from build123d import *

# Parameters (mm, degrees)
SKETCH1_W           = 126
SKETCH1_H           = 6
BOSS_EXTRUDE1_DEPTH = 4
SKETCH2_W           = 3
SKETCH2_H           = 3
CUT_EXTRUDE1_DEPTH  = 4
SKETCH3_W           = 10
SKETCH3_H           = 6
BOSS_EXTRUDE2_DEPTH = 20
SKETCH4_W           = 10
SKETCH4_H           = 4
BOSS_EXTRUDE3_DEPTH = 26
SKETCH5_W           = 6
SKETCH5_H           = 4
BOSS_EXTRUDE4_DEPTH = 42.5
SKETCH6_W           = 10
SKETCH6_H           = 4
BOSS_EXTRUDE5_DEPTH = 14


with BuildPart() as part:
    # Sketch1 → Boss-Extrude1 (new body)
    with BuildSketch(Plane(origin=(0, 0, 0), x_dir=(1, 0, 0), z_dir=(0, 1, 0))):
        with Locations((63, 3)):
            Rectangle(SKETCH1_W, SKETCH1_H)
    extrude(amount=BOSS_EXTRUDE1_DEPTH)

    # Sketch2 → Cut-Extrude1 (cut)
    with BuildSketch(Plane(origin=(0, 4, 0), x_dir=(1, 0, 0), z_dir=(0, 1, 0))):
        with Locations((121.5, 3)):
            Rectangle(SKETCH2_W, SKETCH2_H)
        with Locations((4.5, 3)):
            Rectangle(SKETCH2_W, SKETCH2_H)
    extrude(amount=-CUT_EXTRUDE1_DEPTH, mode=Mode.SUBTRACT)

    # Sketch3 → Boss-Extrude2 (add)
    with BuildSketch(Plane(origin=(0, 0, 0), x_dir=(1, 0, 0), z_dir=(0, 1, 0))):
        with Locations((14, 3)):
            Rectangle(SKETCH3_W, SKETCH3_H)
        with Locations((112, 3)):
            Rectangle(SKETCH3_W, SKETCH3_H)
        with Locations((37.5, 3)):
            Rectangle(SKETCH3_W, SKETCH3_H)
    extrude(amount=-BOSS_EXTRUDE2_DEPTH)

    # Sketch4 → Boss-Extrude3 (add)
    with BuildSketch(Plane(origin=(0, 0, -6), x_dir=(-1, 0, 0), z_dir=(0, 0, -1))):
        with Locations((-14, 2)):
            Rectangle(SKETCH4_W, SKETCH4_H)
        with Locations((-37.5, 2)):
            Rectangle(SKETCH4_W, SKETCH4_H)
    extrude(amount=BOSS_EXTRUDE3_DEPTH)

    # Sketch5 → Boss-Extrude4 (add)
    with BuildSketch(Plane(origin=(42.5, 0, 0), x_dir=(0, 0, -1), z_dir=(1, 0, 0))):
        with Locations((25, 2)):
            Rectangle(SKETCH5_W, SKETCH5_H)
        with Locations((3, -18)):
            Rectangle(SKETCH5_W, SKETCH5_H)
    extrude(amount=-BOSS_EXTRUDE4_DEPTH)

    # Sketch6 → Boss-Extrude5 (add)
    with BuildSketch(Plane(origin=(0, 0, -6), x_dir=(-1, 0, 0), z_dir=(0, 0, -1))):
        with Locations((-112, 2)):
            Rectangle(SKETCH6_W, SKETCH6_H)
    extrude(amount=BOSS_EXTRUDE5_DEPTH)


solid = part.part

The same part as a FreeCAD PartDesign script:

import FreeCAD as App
import Part
import Sketcher

doc = App.newDocument("Part")
body = doc.addObject("PartDesign::Body", "Body")

# Sketch on XZ plane
sketch1 = body.newObject("Sketcher::SketchObject", "Sketch")
sketch1.AttachmentSupport = (doc.getObject("XZ_Plane"), [""])
sketch1.MapMode = "FlatFace"
sketch1.addGeometry(Part.LineSegment(App.Vector(0, -6, 0), App.Vector(0, 0, 0)), False)
sketch1.addGeometry(Part.LineSegment(App.Vector(0, 0, 0), App.Vector(126, 0, 0)), False)
sketch1.addGeometry(Part.LineSegment(App.Vector(126, 0, 0), App.Vector(126, -6, 0)), False)
sketch1.addGeometry(Part.LineSegment(App.Vector(126, -6, 0), App.Vector(0, -6, 0)), False)
sketch1.addConstraint(Sketcher.Constraint("Coincident", 0, 2, 1, 1))
sketch1.addConstraint(Sketcher.Constraint("Coincident", 1, 2, 2, 1))
sketch1.addConstraint(Sketcher.Constraint("Coincident", 2, 2, 3, 1))
sketch1.addConstraint(Sketcher.Constraint("Coincident", 3, 2, 0, 1))
sketch1.addConstraint(Sketcher.Constraint("Vertical", 0))
sketch1.addConstraint(Sketcher.Constraint("Horizontal", 1))
sketch1.addConstraint(Sketcher.Constraint("Vertical", 2))
sketch1.addConstraint(Sketcher.Constraint("Horizontal", 3))
sketch1.addConstraint(Sketcher.Constraint("Coincident", 0, 2, -1, 1))
sketch1.addConstraint(Sketcher.Constraint("DistanceX", 1, 1, 1, 2, 126.0))
sketch1.addConstraint(Sketcher.Constraint("DistanceY", 0, 1, 0, 2, 6.0))
pad1 = body.newObject("PartDesign::Pad", "Pad")
pad1.Profile = sketch1
pad1.Length = 4
pad1.Reversed = True

# Sketch on XZ plane
sketch2 = body.newObject("Sketcher::SketchObject", "Sketch001")
sketch2.AttachmentSupport = (doc.getObject("XZ_Plane"), [""])
sketch2.MapMode = "FlatFace"
sketch2.AttachmentOffset = App.Placement(App.Vector(0, 0, -4), App.Rotation())
sketch2.addGeometry(Part.LineSegment(App.Vector(120, -4.5, 0), App.Vector(120, -1.5, 0)), False)
sketch2.addGeometry(Part.LineSegment(App.Vector(120, -1.5, 0), App.Vector(123, -1.5, 0)), False)
sketch2.addGeometry(Part.LineSegment(App.Vector(123, -1.5, 0), App.Vector(123, -4.5, 0)), False)
sketch2.addGeometry(Part.LineSegment(App.Vector(123, -4.5, 0), App.Vector(120, -4.5, 0)), False)
sketch2.addGeometry(Part.LineSegment(App.Vector(3, -4.5, 0), App.Vector(3, -1.5, 0)), False)
sketch2.addGeometry(Part.LineSegment(App.Vector(3, -1.5, 0), App.Vector(6, -1.5, 0)), False)
sketch2.addGeometry(Part.LineSegment(App.Vector(6, -1.5, 0), App.Vector(6, -4.5, 0)), False)
sketch2.addGeometry(Part.LineSegment(App.Vector(6, -4.5, 0), App.Vector(3, -4.5, 0)), False)
sketch2.addConstraint(Sketcher.Constraint("Coincident", 0, 2, 1, 1))
sketch2.addConstraint(Sketcher.Constraint("Coincident", 1, 2, 2, 1))
sketch2.addConstraint(Sketcher.Constraint("Coincident", 2, 2, 3, 1))
sketch2.addConstraint(Sketcher.Constraint("Coincident", 3, 2, 0, 1))
sketch2.addConstraint(Sketcher.Constraint("Coincident", 4, 2, 5, 1))
sketch2.addConstraint(Sketcher.Constraint("Coincident", 5, 2, 6, 1))
sketch2.addConstraint(Sketcher.Constraint("Coincident", 6, 2, 7, 1))
sketch2.addConstraint(Sketcher.Constraint("Coincident", 7, 2, 4, 1))
sketch2.addConstraint(Sketcher.Constraint("Vertical", 0))
sketch2.addConstraint(Sketcher.Constraint("Horizontal", 1))
sketch2.addConstraint(Sketcher.Constraint("Vertical", 2))
sketch2.addConstraint(Sketcher.Constraint("Horizontal", 3))
sketch2.addConstraint(Sketcher.Constraint("Vertical", 4))
sketch2.addConstraint(Sketcher.Constraint("Horizontal", 5))
sketch2.addConstraint(Sketcher.Constraint("Vertical", 6))
sketch2.addConstraint(Sketcher.Constraint("Horizontal", 7))
sketch2.addConstraint(Sketcher.Constraint("Horizontal", 1, 2, 4, 2))
sketch2.addConstraint(Sketcher.Constraint("Horizontal", 3, 2, 6, 2))
sketch2.addConstraint(Sketcher.Constraint("Equal", 3, 5))
sketch2.addConstraint(Sketcher.Constraint("Equal", 7, 0))
sketch2.addConstraint(Sketcher.Constraint("DistanceX", 1, 1, 1, 2, 3.0))
sketch2.addConstraint(Sketcher.Constraint("DistanceX", -1, 1, 0, 2, 120.0))
sketch2.addConstraint(Sketcher.Constraint("DistanceX", -1, 1, 4, 2, 3.0))
sketch2.addConstraint(Sketcher.Constraint("DistanceY", 0, 2, -1, 1, 1.5))
pocket1 = body.newObject("PartDesign::Pocket", "Pocket")
pocket1.Profile = sketch2
pocket1.Length = 4
pocket1.Reversed = True

# Sketch on XZ plane
sketch3 = body.newObject("Sketcher::SketchObject", "Sketch002")
sketch3.AttachmentSupport = (doc.getObject("XZ_Plane"), [""])
sketch3.MapMode = "FlatFace"
sketch3.addGeometry(Part.LineSegment(App.Vector(9, -6, 0), App.Vector(9, 0, 0)), False)
sketch3.addGeometry(Part.LineSegment(App.Vector(9, 0, 0), App.Vector(19, 0, 0)), False)
sketch3.addGeometry(Part.LineSegment(App.Vector(19, 0, 0), App.Vector(19, -6, 0)), False)
sketch3.addGeometry(Part.LineSegment(App.Vector(19, -6, 0), App.Vector(9, -6, 0)), False)
sketch3.addGeometry(Part.LineSegment(App.Vector(107, -6, 0), App.Vector(107, 0, 0)), False)
sketch3.addGeometry(Part.LineSegment(App.Vector(107, 0, 0), App.Vector(117, 0, 0)), False)
sketch3.addGeometry(Part.LineSegment(App.Vector(117, 0, 0), App.Vector(117, -6, 0)), False)
sketch3.addGeometry(Part.LineSegment(App.Vector(117, -6, 0), App.Vector(107, -6, 0)), False)
sketch3.addGeometry(Part.LineSegment(App.Vector(32, -6, 0), App.Vector(32, 0, 0)), False)
sketch3.addGeometry(Part.LineSegment(App.Vector(32, 0, 0), App.Vector(42, 0, 0)), False)
sketch3.addGeometry(Part.LineSegment(App.Vector(42, 0, 0), App.Vector(42, -6, 0)), False)
sketch3.addGeometry(Part.LineSegment(App.Vector(42, -6, 0), App.Vector(32, -6, 0)), False)
sketch3.addConstraint(Sketcher.Constraint("Coincident", 0, 2, 1, 1))
sketch3.addConstraint(Sketcher.Constraint("Coincident", 1, 2, 2, 1))
sketch3.addConstraint(Sketcher.Constraint("Coincident", 2, 2, 3, 1))
sketch3.addConstraint(Sketcher.Constraint("Coincident", 3, 2, 0, 1))
sketch3.addConstraint(Sketcher.Constraint("Coincident", 4, 2, 5, 1))
sketch3.addConstraint(Sketcher.Constraint("Coincident", 5, 2, 6, 1))
sketch3.addConstraint(Sketcher.Constraint("Coincident", 6, 2, 7, 1))
sketch3.addConstraint(Sketcher.Constraint("Coincident", 7, 2, 4, 1))
sketch3.addConstraint(Sketcher.Constraint("Coincident", 8, 2, 9, 1))
sketch3.addConstraint(Sketcher.Constraint("Coincident", 9, 2, 10, 1))
sketch3.addConstraint(Sketcher.Constraint("Coincident", 10, 2, 11, 1))
sketch3.addConstraint(Sketcher.Constraint("Coincident", 11, 2, 8, 1))
sketch3.addConstraint(Sketcher.Constraint("Vertical", 0))
sketch3.addConstraint(Sketcher.Constraint("Horizontal", 1))
sketch3.addConstraint(Sketcher.Constraint("Vertical", 2))
sketch3.addConstraint(Sketcher.Constraint("Horizontal", 3))
sketch3.addConstraint(Sketcher.Constraint("Vertical", 4))
sketch3.addConstraint(Sketcher.Constraint("Horizontal", 5))
sketch3.addConstraint(Sketcher.Constraint("Vertical", 6))
sketch3.addConstraint(Sketcher.Constraint("Horizontal", 7))
sketch3.addConstraint(Sketcher.Constraint("Vertical", 8))
sketch3.addConstraint(Sketcher.Constraint("Horizontal", 9))
sketch3.addConstraint(Sketcher.Constraint("Vertical", 10))
sketch3.addConstraint(Sketcher.Constraint("Horizontal", 11))
sketch3.addConstraint(Sketcher.Constraint("PointOnObject", 0, 2, -1))
sketch3.addConstraint(Sketcher.Constraint("PointOnObject", 4, 2, -1))
sketch3.addConstraint(Sketcher.Constraint("PointOnObject", 8, 2, -1))
sketch3.addConstraint(Sketcher.Constraint("Horizontal", 3, 2, 6, 2))
sketch3.addConstraint(Sketcher.Constraint("Horizontal", 7, 2, 10, 2))
sketch3.addConstraint(Sketcher.Constraint("Equal", 3, 5))
sketch3.addConstraint(Sketcher.Constraint("Equal", 7, 9))
sketch3.addConstraint(Sketcher.Constraint("DistanceX", 1, 1, 1, 2, 10.0))
sketch3.addConstraint(Sketcher.Constraint("DistanceY", 0, 1, 0, 2, 6.0))
sketch3.addConstraint(Sketcher.Constraint("DistanceX", -1, 1, 0, 2, 9.0))
sketch3.addConstraint(Sketcher.Constraint("DistanceX", -1, 1, 4, 2, 107.0))
sketch3.addConstraint(Sketcher.Constraint("DistanceX", -1, 1, 8, 2, 32.5))
pad2 = body.newObject("PartDesign::Pad", "Pad001")
pad2.Profile = sketch3
pad2.Length = 20

# Sketch on XY plane
sketch4 = body.newObject("Sketcher::SketchObject", "Sketch003")
sketch4.AttachmentSupport = (doc.getObject("XY_Plane"), [""])
sketch4.MapMode = "FlatFace"
sketch4.AttachmentOffset = App.Placement(App.Vector(0, 0, -6), App.Rotation())
sketch4.addGeometry(Part.LineSegment(App.Vector(19, 4, 0), App.Vector(19, 0, 0)), False)
sketch4.addGeometry(Part.LineSegment(App.Vector(19, 0, 0), App.Vector(9, 0, 0)), False)
sketch4.addGeometry(Part.LineSegment(App.Vector(9, 0, 0), App.Vector(9, 4, 0)), False)
sketch4.addGeometry(Part.LineSegment(App.Vector(9, 4, 0), App.Vector(19, 4, 0)), False)
sketch4.addGeometry(Part.LineSegment(App.Vector(42.5, 4, 0), App.Vector(42.5, 0, 0)), False)
sketch4.addGeometry(Part.LineSegment(App.Vector(42.5, 0, 0), App.Vector(32.5, 0, 0)), False)
sketch4.addGeometry(Part.LineSegment(App.Vector(32.5, 0, 0), App.Vector(32.5, 4, 0)), False)
sketch4.addGeometry(Part.LineSegment(App.Vector(32.5, 4, 0), App.Vector(42.5, 4, 0)), False)
sketch4.addConstraint(Sketcher.Constraint("Coincident", 0, 2, 1, 1))
sketch4.addConstraint(Sketcher.Constraint("Coincident", 1, 2, 2, 1))
sketch4.addConstraint(Sketcher.Constraint("Coincident", 2, 2, 3, 1))
sketch4.addConstraint(Sketcher.Constraint("Coincident", 3, 2, 0, 1))
sketch4.addConstraint(Sketcher.Constraint("Coincident", 4, 2, 5, 1))
sketch4.addConstraint(Sketcher.Constraint("Coincident", 5, 2, 6, 1))
sketch4.addConstraint(Sketcher.Constraint("Coincident", 6, 2, 7, 1))
sketch4.addConstraint(Sketcher.Constraint("Coincident", 7, 2, 4, 1))
sketch4.addConstraint(Sketcher.Constraint("Vertical", 0))
sketch4.addConstraint(Sketcher.Constraint("Horizontal", 1))
sketch4.addConstraint(Sketcher.Constraint("Vertical", 2))
sketch4.addConstraint(Sketcher.Constraint("Horizontal", 3))
sketch4.addConstraint(Sketcher.Constraint("Vertical", 4))
sketch4.addConstraint(Sketcher.Constraint("Horizontal", 5))
sketch4.addConstraint(Sketcher.Constraint("Vertical", 6))
sketch4.addConstraint(Sketcher.Constraint("Horizontal", 7))
sketch4.addConstraint(Sketcher.Constraint("PointOnObject", 0, 2, -1))
sketch4.addConstraint(Sketcher.Constraint("PointOnObject", 4, 2, -1))
sketch4.addConstraint(Sketcher.Constraint("Horizontal", 3, 2, 6, 2))
sketch4.addConstraint(Sketcher.Constraint("Equal", 3, 5))
sketch4.addConstraint(Sketcher.Constraint("DistanceX", 1, 2, 1, 1, 10.0))
sketch4.addConstraint(Sketcher.Constraint("DistanceY", 0, 2, 0, 1, 4.0))
sketch4.addConstraint(Sketcher.Constraint("DistanceX", -1, 1, 0, 2, 19.0))
sketch4.addConstraint(Sketcher.Constraint("DistanceX", -1, 1, 4, 2, 42.5))
pad3 = body.newObject("PartDesign::Pad", "Pad002")
pad3.Profile = sketch4
pad3.Length = 26
pad3.Reversed = True

# Sketch on YZ plane
sketch5 = body.newObject("Sketcher::SketchObject", "Sketch004")
sketch5.AttachmentSupport = (doc.getObject("YZ_Plane"), [""])
sketch5.MapMode = "FlatFace"
sketch5.AttachmentOffset = App.Placement(App.Vector(0, 0, 42.5), App.Rotation())
sketch5.addGeometry(Part.LineSegment(App.Vector(4, -22, 0), App.Vector(0, -22, 0)), False)
sketch5.addGeometry(Part.LineSegment(App.Vector(0, -22, 0), App.Vector(0, -28, 0)), False)
sketch5.addGeometry(Part.LineSegment(App.Vector(0, -28, 0), App.Vector(4, -28, 0)), False)
sketch5.addGeometry(Part.LineSegment(App.Vector(4, -28, 0), App.Vector(4, -22, 0)), False)
sketch5.addGeometry(Part.LineSegment(App.Vector(-16, 0, 0), App.Vector(-20, 0, 0)), False)
sketch5.addGeometry(Part.LineSegment(App.Vector(-20, 0, 0), App.Vector(-20, -6, 0)), False)
sketch5.addGeometry(Part.LineSegment(App.Vector(-20, -6, 0), App.Vector(-16, -6, 0)), False)
sketch5.addGeometry(Part.LineSegment(App.Vector(-16, -6, 0), App.Vector(-16, 0, 0)), False)
sketch5.addConstraint(Sketcher.Constraint("Coincident", 0, 2, 1, 1))
sketch5.addConstraint(Sketcher.Constraint("Coincident", 1, 2, 2, 1))
sketch5.addConstraint(Sketcher.Constraint("Coincident", 2, 2, 3, 1))
sketch5.addConstraint(Sketcher.Constraint("Coincident", 3, 2, 0, 1))
sketch5.addConstraint(Sketcher.Constraint("Coincident", 4, 2, 5, 1))
sketch5.addConstraint(Sketcher.Constraint("Coincident", 5, 2, 6, 1))
sketch5.addConstraint(Sketcher.Constraint("Coincident", 6, 2, 7, 1))
sketch5.addConstraint(Sketcher.Constraint("Coincident", 7, 2, 4, 1))
sketch5.addConstraint(Sketcher.Constraint("Horizontal", 0))
sketch5.addConstraint(Sketcher.Constraint("Vertical", 1))
sketch5.addConstraint(Sketcher.Constraint("Horizontal", 2))
sketch5.addConstraint(Sketcher.Constraint("Vertical", 3))
sketch5.addConstraint(Sketcher.Constraint("Horizontal", 4))
sketch5.addConstraint(Sketcher.Constraint("Vertical", 5))
sketch5.addConstraint(Sketcher.Constraint("Horizontal", 6))
sketch5.addConstraint(Sketcher.Constraint("Vertical", 7))
sketch5.addConstraint(Sketcher.Constraint("PointOnObject", 0, 2, -2))
sketch5.addConstraint(Sketcher.Constraint("PointOnObject", 4, 2, -1))
sketch5.addConstraint(Sketcher.Constraint("Equal", 2, 4))
sketch5.addConstraint(Sketcher.Constraint("Equal", 3, 5))
sketch5.addConstraint(Sketcher.Constraint("DistanceX", 0, 2, 0, 1, 4.0))
sketch5.addConstraint(Sketcher.Constraint("DistanceY", 1, 2, 1, 1, 6.0))
sketch5.addConstraint(Sketcher.Constraint("DistanceY", 0, 2, -1, 1, 22.0))
sketch5.addConstraint(Sketcher.Constraint("DistanceX", 4, 2, -1, 1, 20.0))
pad4 = body.newObject("PartDesign::Pad", "Pad003")
pad4.Profile = sketch5
pad4.Length = 42.5
pad4.Reversed = True

# Sketch on XY plane
sketch6 = body.newObject("Sketcher::SketchObject", "Sketch005")
sketch6.AttachmentSupport = (doc.getObject("XY_Plane"), [""])
sketch6.MapMode = "FlatFace"
sketch6.AttachmentOffset = App.Placement(App.Vector(0, 0, -6), App.Rotation())
sketch6.addGeometry(Part.LineSegment(App.Vector(117, 4, 0), App.Vector(117, 0, 0)), False)
sketch6.addGeometry(Part.LineSegment(App.Vector(117, 0, 0), App.Vector(107, 0, 0)), False)
sketch6.addGeometry(Part.LineSegment(App.Vector(107, 0, 0), App.Vector(107, 4, 0)), False)
sketch6.addGeometry(Part.LineSegment(App.Vector(107, 4, 0), App.Vector(117, 4, 0)), False)
sketch6.addConstraint(Sketcher.Constraint("Coincident", 0, 2, 1, 1))
sketch6.addConstraint(Sketcher.Constraint("Coincident", 1, 2, 2, 1))
sketch6.addConstraint(Sketcher.Constraint("Coincident", 2, 2, 3, 1))
sketch6.addConstraint(Sketcher.Constraint("Coincident", 3, 2, 0, 1))
sketch6.addConstraint(Sketcher.Constraint("Vertical", 0))
sketch6.addConstraint(Sketcher.Constraint("Horizontal", 1))
sketch6.addConstraint(Sketcher.Constraint("Vertical", 2))
sketch6.addConstraint(Sketcher.Constraint("Horizontal", 3))
sketch6.addConstraint(Sketcher.Constraint("PointOnObject", 0, 2, -1))
sketch6.addConstraint(Sketcher.Constraint("DistanceX", 1, 2, 1, 1, 10.0))
sketch6.addConstraint(Sketcher.Constraint("DistanceY", 0, 2, 0, 1, 4.0))
sketch6.addConstraint(Sketcher.Constraint("DistanceX", -1, 1, 0, 2, 117.0))
pad5 = body.newObject("PartDesign::Pad", "Pad004")
pad5.Profile = sketch6
pad5.Length = 14
pad5.Reversed = True

doc.recompute()
